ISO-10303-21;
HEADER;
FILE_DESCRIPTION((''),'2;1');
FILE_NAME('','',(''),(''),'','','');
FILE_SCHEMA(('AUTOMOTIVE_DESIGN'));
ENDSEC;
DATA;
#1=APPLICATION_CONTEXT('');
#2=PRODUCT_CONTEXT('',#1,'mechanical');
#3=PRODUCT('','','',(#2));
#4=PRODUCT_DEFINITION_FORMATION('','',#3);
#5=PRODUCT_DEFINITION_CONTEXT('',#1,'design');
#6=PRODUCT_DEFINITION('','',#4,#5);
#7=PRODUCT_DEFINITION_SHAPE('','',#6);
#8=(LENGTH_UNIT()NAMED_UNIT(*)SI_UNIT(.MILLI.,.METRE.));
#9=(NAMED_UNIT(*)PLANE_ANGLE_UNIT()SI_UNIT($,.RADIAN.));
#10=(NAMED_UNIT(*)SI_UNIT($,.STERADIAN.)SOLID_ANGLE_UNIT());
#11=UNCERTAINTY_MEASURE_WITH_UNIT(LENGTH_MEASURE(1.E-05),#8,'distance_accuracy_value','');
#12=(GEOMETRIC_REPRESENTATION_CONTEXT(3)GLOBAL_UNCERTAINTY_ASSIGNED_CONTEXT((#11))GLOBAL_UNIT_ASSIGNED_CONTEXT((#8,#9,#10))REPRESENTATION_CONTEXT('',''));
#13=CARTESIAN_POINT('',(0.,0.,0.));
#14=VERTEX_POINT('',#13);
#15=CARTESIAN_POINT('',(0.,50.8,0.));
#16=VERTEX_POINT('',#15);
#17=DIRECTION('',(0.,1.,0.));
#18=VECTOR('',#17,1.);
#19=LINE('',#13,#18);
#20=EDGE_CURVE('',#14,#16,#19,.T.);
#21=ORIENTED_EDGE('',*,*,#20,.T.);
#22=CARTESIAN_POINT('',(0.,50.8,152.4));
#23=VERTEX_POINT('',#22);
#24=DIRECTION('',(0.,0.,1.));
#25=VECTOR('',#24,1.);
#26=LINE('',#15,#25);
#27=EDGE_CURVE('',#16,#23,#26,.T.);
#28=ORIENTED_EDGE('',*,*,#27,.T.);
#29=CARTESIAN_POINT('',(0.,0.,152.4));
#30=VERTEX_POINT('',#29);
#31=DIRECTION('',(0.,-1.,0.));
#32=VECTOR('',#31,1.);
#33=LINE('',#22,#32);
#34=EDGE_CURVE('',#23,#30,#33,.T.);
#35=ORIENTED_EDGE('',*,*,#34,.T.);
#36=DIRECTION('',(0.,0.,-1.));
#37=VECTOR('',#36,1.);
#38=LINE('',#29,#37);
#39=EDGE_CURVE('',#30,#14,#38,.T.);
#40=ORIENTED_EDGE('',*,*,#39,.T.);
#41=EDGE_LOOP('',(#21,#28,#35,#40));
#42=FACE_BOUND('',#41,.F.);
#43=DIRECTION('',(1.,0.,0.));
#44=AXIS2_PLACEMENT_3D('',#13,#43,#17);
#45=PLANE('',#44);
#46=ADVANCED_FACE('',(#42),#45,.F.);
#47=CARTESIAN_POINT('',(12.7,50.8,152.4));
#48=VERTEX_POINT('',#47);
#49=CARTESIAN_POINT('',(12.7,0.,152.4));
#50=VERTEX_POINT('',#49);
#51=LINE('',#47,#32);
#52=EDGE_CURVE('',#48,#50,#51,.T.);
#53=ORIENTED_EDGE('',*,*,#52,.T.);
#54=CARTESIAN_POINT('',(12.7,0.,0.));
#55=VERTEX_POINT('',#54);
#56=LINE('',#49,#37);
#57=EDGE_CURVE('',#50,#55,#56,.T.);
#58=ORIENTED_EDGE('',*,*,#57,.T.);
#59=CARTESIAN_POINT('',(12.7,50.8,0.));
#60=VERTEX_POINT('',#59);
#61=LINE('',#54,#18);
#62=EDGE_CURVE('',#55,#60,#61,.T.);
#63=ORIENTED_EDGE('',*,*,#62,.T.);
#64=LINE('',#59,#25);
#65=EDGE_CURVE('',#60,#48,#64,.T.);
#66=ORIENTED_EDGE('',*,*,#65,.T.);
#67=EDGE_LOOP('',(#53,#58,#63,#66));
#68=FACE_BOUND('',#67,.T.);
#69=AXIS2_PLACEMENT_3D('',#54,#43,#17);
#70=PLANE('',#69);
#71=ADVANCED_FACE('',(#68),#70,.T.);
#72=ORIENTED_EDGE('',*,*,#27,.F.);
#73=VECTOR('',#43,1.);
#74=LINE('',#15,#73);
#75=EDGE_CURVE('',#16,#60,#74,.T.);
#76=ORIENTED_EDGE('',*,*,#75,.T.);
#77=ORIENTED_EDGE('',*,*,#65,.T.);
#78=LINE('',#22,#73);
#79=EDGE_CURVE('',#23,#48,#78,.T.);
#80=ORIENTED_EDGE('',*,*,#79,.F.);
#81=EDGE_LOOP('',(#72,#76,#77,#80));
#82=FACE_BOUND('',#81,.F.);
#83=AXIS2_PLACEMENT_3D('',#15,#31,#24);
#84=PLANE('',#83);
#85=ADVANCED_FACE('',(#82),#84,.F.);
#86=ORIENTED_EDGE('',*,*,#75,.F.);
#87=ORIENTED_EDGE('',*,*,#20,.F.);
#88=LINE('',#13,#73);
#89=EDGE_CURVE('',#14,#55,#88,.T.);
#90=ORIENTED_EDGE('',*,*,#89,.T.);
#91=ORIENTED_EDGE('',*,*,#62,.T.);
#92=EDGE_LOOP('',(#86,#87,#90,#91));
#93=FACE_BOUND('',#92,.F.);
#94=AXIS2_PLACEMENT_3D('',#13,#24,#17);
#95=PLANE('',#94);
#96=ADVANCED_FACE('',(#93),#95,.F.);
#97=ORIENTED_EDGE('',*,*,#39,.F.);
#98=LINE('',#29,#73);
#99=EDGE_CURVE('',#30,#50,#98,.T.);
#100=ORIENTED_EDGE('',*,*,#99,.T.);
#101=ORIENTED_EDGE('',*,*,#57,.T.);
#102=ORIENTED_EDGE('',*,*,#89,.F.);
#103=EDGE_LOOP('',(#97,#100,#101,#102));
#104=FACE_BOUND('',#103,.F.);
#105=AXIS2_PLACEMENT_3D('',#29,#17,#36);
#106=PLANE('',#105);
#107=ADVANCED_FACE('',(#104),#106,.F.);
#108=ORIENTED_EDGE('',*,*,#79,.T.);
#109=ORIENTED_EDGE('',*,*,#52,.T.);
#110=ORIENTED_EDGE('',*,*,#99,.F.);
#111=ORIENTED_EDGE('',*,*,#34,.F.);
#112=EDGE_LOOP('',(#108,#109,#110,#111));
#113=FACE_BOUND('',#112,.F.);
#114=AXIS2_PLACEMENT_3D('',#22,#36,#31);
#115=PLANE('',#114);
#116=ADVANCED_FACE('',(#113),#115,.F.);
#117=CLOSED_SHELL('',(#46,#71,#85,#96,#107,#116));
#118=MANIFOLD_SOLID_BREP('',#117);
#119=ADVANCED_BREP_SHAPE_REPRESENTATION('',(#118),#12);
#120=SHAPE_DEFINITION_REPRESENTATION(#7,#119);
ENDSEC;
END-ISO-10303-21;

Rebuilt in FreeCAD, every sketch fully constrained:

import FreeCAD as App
import Part
import Sketcher
Q = App.Units.Quantity


def add_polygon(sketch, points):
    """Adds a closed chain of lines whose ends are joined by coincident constraints."""
    first, n = sketch.GeometryCount, len(points)
    for a, b in zip(points, points[1:] + points[:1]):
        sketch.addGeometry(Part.LineSegment(App.Vector(*a, 0), App.Vector(*b, 0)), False)
    for i in range(n):
        sketch.addConstraint(Sketcher.Constraint("Coincident", first + i, 2, first + (i + 1) % n, 1))

doc = App.newDocument("Part")
params = doc.addObject("Spreadsheet::Sheet", "Params")
for row, (alias, value) in enumerate([
    ("sketch1_width", "2 in"),
    ("sketch1_height", "6 in"),
    ("pad1_length", "0.5 in"),
], start=1):
    params.set(f"A{row}", alias)
    params.set(f"B{row}", "=" + value)
    params.setAlias(f"B{row}", alias)

body = doc.addObject("PartDesign::Body", "Body")

# Sketch on YZ plane
sketch1 = body.newObject("Sketcher::SketchObject", "Sketch")
sketch1.AttachmentSupport = (doc.getObject("YZ_Plane"), [""])
sketch1.MapMode = "FlatFace"
add_polygon(sketch1, [(0, 152), (0, 0), (51, 0), (51, 152)])  # lines 0-3
sketch1.addConstraint(Sketcher.Constraint("Vertical", 0))
sketch1.addConstraint(Sketcher.Constraint("Horizontal", 1))
sketch1.addConstraint(Sketcher.Constraint("Vertical", 2))
sketch1.addConstraint(Sketcher.Constraint("Horizontal", 3))
sketch1.addConstraint(Sketcher.Constraint("Coincident", 0, 2, -1, 1))
sketch1.addConstraint(Sketcher.Constraint("DistanceX", 1, 1, 1, 2, Q("2 in")))
sketch1.addConstraint(Sketcher.Constraint("DistanceY", 0, 2, 0, 1, Q("6 in")))
sketch1.setExpression("Constraints[9]", "Params.sketch1_width")
sketch1.setExpression("Constraints[10]", "Params.sketch1_height")
pad1 = body.newObject("PartDesign::Pad", "Pad")
pad1.Profile = sketch1
pad1.setExpression("Length", "Params.pad1_length")

doc.recompute()
